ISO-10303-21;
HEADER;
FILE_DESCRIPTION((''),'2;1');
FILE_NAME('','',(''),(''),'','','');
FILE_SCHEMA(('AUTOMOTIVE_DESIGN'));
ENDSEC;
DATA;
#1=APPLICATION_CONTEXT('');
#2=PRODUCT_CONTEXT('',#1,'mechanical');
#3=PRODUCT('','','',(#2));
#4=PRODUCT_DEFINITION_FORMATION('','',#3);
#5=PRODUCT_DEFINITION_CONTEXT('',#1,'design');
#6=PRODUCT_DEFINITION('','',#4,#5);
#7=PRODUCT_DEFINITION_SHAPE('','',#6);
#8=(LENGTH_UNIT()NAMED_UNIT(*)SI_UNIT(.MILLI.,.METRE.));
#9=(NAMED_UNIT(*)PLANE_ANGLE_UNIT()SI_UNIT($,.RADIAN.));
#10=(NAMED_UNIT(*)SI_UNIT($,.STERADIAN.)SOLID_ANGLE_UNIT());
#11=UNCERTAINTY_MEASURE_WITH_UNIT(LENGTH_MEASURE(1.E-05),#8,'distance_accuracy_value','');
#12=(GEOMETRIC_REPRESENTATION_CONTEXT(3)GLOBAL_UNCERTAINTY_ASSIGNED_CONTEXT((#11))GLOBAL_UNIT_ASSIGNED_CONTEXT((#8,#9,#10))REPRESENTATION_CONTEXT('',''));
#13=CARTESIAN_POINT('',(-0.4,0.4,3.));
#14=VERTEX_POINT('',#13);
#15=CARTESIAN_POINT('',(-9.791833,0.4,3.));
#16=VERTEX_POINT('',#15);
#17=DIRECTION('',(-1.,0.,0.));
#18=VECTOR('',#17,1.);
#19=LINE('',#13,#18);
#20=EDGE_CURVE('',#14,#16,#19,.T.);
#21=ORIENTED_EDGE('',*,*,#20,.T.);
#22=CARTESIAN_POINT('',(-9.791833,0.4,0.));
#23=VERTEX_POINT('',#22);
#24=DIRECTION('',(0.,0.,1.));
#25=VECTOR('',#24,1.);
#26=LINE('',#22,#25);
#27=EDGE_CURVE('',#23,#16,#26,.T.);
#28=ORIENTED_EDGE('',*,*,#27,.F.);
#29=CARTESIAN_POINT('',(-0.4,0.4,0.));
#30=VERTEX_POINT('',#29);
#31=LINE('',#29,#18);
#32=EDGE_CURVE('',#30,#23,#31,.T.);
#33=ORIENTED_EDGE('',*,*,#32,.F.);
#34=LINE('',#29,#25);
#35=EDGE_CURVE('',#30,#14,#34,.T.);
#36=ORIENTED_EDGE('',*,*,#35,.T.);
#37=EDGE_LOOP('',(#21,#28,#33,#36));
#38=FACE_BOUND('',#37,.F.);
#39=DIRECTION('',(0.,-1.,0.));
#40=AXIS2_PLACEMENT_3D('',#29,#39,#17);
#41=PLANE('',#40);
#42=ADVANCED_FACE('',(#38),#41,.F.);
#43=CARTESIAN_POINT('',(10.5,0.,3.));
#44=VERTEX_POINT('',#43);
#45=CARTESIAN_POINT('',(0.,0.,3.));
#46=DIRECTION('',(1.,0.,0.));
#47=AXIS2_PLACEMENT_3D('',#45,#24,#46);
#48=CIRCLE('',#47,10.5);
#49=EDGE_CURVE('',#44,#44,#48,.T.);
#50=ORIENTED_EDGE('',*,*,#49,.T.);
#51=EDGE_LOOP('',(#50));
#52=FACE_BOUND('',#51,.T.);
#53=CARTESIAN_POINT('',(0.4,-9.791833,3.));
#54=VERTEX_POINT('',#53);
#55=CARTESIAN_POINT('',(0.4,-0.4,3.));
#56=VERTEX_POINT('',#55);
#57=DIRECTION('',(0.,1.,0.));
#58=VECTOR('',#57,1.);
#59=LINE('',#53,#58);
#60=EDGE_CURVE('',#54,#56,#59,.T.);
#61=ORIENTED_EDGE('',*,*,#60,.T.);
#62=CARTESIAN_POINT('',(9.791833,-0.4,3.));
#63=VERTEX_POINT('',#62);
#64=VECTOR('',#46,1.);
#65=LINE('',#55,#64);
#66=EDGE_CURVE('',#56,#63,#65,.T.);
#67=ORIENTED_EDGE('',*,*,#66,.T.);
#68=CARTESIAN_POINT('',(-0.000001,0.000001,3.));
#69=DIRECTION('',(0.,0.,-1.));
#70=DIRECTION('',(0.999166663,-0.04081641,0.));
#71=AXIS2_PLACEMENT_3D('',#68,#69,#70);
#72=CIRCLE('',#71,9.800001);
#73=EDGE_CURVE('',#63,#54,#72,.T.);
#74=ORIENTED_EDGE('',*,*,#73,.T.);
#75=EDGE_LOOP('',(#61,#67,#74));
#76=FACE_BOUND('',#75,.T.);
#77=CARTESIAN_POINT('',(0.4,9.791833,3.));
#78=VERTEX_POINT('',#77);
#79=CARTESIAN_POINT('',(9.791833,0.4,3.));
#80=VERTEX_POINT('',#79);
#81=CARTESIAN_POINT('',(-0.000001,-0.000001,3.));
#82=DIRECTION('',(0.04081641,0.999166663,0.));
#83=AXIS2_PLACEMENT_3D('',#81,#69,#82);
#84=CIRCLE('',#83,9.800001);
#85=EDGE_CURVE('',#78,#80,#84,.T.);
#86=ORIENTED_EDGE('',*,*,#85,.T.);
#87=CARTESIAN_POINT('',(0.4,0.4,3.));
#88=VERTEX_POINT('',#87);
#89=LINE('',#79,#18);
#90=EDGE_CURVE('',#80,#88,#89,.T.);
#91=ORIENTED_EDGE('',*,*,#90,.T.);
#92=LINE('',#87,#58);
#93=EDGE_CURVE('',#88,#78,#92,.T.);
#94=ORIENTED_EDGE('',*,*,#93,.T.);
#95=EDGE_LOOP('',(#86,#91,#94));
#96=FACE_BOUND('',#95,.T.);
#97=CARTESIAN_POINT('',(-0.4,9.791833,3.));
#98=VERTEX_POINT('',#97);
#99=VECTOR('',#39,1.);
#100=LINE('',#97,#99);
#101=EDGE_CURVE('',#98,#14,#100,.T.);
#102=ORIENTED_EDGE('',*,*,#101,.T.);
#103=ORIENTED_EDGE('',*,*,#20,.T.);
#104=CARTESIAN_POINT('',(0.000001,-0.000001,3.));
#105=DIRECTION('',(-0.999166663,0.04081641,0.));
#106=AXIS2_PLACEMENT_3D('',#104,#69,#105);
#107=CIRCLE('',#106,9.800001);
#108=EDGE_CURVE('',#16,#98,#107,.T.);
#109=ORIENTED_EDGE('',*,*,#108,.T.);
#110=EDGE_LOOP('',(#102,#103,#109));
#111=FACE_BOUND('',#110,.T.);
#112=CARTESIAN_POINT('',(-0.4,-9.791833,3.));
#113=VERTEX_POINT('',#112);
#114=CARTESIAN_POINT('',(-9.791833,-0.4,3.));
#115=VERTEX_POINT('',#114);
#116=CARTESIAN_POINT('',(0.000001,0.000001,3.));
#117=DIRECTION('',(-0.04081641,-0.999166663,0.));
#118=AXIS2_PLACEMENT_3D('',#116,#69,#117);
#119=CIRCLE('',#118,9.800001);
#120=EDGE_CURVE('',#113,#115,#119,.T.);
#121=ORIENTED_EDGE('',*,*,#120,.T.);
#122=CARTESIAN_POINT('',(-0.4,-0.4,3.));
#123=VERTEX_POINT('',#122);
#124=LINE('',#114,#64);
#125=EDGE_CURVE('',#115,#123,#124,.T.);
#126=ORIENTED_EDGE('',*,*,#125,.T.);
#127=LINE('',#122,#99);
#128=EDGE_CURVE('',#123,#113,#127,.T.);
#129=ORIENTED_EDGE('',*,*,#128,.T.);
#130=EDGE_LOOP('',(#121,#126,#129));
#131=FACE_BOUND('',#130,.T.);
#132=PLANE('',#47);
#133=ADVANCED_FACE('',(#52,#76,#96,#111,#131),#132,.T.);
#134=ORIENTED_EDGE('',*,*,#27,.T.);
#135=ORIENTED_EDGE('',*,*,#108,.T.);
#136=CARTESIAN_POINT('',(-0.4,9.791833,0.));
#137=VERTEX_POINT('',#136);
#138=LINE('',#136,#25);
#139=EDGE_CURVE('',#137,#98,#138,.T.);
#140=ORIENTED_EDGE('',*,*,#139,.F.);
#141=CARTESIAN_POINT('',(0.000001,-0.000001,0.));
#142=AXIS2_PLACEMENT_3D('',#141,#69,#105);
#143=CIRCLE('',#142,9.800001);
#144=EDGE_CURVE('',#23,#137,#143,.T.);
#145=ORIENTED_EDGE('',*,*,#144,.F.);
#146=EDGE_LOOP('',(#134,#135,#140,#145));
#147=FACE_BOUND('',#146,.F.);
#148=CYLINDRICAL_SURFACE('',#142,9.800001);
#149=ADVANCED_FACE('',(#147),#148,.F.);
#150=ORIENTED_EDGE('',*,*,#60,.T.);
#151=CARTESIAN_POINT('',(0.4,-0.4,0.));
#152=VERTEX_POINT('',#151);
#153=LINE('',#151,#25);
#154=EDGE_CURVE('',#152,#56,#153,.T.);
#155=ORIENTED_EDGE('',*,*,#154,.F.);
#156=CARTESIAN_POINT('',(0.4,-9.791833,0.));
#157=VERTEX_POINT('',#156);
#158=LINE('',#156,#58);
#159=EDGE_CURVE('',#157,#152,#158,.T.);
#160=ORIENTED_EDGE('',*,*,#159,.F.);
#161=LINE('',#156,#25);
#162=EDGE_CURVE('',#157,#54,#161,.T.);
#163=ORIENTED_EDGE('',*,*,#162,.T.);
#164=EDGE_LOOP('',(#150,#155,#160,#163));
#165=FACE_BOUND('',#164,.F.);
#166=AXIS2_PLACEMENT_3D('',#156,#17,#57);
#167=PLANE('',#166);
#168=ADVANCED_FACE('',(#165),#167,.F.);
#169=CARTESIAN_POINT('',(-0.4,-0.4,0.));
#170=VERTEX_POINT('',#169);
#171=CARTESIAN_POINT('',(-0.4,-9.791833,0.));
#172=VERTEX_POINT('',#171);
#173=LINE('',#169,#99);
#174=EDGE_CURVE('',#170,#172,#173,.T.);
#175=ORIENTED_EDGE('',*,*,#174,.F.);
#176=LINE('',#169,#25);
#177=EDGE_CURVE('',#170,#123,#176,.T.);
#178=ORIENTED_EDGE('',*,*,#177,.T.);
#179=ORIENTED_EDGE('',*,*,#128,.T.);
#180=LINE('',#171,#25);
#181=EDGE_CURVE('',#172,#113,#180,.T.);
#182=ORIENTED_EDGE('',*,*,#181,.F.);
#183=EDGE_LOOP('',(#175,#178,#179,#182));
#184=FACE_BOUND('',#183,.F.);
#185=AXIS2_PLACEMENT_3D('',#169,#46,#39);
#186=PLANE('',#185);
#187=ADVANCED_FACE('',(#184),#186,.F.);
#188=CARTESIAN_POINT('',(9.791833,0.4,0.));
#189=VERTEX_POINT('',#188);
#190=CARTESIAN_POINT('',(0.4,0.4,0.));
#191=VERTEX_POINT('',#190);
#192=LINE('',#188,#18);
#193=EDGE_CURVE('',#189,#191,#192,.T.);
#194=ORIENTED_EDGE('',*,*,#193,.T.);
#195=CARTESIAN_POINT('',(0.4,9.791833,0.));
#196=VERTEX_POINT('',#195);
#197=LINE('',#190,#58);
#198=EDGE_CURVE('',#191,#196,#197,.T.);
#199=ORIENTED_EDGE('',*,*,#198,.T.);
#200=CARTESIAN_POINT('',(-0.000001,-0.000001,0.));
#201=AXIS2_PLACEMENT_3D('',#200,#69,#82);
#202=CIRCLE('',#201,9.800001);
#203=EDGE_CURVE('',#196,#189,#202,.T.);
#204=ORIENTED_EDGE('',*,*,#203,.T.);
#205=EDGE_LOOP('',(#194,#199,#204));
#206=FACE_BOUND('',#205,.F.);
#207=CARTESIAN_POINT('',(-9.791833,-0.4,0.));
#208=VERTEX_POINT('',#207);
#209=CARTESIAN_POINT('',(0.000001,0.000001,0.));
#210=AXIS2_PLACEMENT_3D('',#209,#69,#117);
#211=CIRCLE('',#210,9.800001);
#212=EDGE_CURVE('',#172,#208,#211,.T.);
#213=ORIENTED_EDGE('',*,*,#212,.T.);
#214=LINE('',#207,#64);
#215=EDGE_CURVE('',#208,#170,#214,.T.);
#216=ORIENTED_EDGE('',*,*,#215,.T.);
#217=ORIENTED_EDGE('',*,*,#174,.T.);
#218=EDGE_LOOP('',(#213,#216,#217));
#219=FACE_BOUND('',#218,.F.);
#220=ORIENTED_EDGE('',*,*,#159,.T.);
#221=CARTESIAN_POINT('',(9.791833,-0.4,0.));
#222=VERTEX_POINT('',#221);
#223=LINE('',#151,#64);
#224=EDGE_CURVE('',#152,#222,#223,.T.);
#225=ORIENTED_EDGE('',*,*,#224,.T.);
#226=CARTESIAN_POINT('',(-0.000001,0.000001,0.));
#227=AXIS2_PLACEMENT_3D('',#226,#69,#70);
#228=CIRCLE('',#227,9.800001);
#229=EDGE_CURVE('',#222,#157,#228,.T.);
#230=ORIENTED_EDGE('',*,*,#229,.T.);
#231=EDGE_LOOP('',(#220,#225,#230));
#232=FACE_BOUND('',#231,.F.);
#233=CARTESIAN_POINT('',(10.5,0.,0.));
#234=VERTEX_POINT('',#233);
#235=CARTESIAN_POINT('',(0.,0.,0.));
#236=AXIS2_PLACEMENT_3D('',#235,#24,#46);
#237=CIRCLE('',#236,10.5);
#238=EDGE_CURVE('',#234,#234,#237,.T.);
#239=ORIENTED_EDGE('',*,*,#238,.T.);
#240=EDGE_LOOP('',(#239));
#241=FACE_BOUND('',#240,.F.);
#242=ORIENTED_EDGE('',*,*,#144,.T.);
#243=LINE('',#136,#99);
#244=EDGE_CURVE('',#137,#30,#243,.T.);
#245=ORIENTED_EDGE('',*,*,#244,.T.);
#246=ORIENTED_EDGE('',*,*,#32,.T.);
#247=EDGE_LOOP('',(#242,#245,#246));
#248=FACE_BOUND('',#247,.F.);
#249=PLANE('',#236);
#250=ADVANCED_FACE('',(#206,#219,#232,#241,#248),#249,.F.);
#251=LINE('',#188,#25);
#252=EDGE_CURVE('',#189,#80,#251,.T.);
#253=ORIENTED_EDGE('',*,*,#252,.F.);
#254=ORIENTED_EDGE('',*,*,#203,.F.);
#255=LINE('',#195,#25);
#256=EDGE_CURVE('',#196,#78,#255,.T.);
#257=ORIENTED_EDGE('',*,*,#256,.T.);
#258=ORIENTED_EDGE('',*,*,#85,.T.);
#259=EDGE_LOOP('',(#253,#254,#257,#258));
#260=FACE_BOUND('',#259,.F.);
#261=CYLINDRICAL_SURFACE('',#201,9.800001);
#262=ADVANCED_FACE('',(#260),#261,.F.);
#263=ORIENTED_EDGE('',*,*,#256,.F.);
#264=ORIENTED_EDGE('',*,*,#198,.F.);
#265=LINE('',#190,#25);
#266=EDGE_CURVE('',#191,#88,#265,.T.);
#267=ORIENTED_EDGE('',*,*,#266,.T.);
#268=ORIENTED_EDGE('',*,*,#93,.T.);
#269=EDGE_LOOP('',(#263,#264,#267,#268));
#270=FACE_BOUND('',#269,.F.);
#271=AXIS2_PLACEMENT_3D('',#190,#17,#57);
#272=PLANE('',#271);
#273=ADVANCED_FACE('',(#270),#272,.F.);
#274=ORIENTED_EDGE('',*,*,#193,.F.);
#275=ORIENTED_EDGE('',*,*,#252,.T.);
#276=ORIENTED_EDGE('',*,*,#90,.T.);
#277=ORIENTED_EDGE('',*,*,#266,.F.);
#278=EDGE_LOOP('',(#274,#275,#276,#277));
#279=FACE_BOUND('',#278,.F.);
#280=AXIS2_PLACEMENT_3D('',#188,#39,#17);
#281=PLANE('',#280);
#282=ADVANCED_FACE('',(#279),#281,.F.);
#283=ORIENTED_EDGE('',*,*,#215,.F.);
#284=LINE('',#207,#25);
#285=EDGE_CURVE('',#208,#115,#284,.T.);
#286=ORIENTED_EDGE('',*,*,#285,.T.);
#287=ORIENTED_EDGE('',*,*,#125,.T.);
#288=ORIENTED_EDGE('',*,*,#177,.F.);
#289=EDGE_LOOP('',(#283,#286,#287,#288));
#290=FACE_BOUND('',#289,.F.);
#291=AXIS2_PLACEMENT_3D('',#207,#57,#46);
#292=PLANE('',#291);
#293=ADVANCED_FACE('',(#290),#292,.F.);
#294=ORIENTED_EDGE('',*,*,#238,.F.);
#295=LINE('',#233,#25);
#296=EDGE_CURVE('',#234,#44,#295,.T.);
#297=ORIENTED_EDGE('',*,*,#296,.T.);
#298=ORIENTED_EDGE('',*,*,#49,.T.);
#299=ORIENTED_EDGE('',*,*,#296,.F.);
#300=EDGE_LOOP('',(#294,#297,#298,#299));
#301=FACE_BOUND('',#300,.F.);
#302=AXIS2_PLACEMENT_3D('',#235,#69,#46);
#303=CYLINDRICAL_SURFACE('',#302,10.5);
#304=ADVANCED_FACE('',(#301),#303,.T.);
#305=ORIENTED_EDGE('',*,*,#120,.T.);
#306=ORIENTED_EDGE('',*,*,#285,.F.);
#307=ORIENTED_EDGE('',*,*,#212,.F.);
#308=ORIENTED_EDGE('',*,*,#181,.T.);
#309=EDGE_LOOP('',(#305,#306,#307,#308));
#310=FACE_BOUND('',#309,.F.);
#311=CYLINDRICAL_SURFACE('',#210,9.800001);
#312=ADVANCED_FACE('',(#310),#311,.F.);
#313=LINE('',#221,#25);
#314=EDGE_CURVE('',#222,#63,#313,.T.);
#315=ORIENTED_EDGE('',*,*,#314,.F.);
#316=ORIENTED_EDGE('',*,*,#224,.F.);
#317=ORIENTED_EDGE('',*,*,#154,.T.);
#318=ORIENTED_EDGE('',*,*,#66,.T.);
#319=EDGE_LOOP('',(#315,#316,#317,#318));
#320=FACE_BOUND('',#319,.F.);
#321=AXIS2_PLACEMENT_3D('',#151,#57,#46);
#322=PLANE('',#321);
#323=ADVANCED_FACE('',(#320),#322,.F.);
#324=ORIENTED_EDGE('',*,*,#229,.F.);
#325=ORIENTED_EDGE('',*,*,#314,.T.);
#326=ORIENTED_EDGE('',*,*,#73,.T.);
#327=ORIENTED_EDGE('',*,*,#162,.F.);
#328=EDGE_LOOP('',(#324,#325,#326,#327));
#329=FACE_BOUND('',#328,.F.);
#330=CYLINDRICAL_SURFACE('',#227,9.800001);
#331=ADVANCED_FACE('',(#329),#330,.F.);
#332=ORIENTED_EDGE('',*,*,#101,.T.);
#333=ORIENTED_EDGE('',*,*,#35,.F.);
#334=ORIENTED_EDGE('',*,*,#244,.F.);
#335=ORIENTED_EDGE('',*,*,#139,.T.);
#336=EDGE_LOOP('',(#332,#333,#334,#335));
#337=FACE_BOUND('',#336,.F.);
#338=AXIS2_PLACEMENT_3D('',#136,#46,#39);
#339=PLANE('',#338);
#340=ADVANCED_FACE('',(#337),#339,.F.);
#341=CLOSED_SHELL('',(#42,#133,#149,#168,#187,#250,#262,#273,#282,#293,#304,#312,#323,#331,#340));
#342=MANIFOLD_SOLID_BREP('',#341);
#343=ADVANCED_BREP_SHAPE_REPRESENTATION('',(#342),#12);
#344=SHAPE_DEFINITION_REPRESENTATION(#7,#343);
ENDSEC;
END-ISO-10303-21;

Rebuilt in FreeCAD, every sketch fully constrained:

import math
import FreeCAD as App
import Part
import Sketcher

doc = App.newDocument("Part")
params = doc.addObject("Spreadsheet::Sheet", "Params")
for row, (alias, value) in enumerate([
    ("sketch1_diameter", "21 mm"),
    ("sketch1_radius", "9.800001 mm"),
    ("pad1_length", "3 mm"),
], start=1):
    params.set(f"A{row}", alias)
    params.set(f"B{row}", "=" + value)
    params.setAlias(f"B{row}", alias)

body = doc.addObject("PartDesign::Body", "Body")

sketch1 = body.newObject("Sketcher::SketchObject", "Sketch")
sketch1.AttachmentSupport = (doc.getObject("XY_Plane"), [""])
sketch1.MapMode = "FlatFace"
sketch1.addGeometry([
    Part.Circle(App.Vector(0, 0, 0), App.Vector(0, 0, 1), 10.5),
    Part.LineSegment(App.Vector(-9.791833, -0.4, 0), App.Vector(-0.4, -0.4, 0)),
    Part.LineSegment(App.Vector(-0.4, -0.4, 0), App.Vector(-0.4, -9.791833, 0)),
    Part.ArcOfCircle(Part.Circle(App.Vector(0.000001, 0.000001, 0), App.Vector(0, 0, 1), 9.800001), math.radians(-177.660742), math.radians(-92.339258)),
    Part.LineSegment(App.Vector(0.4, -9.791833, 0), App.Vector(0.4, -0.4, 0)),
    Part.LineSegment(App.Vector(0.4, -0.4, 0), App.Vector(9.791833, -0.4, 0)),
    Part.ArcOfCircle(Part.Circle(App.Vector(-0.000001, 0.000001, 0), App.Vector(0, 0, 1), 9.800001), math.radians(-87.660742), math.radians(-2.339258)),
    Part.LineSegment(App.Vector(-0.4, 0.4, 0), App.Vector(-9.791833, 0.4, 0)),
    Part.ArcOfCircle(Part.Circle(App.Vector(0.000001, -0.000001, 0), App.Vector(0, 0, 1), 9.800001), math.radians(92.339258), math.radians(177.660742)),
    Part.LineSegment(App.Vector(-0.4, 9.791833, 0), App.Vector(-0.4, 0.4, 0)),
    Part.LineSegment(App.Vector(9.791833, 0.4, 0), App.Vector(0.4, 0.4, 0)),
    Part.LineSegment(App.Vector(0.4, 0.4, 0), App.Vector(0.4, 9.791833, 0)),
    Part.ArcOfCircle(Part.Circle(App.Vector(-0.000001, -0.000001, 0), App.Vector(0, 0, 1), 9.800001), math.radians(2.339258), math.radians(87.660742)),
], False)
sketch1.addConstraint([
    Sketcher.Constraint("Coincident", 1, 2, 2, 1),
    Sketcher.Constraint("Coincident", 2, 2, 3, 2),
    Sketcher.Constraint("Coincident", 3, 1, 1, 1),
    Sketcher.Constraint("Coincident", 4, 2, 5, 1),
    Sketcher.Constraint("Coincident", 5, 2, 6, 2),
    Sketcher.Constraint("Coincident", 6, 1, 4, 1),
    Sketcher.Constraint("Coincident", 7, 2, 8, 2),
    Sketcher.Constraint("Coincident", 8, 1, 9, 1),
    Sketcher.Constraint("Coincident", 9, 2, 7, 1),
    Sketcher.Constraint("Coincident", 10, 2, 11, 1),
    Sketcher.Constraint("Coincident", 11, 2, 12, 2),
    Sketcher.Constraint("Coincident", 12, 1, 10, 1),
    Sketcher.Constraint("Horizontal", 1),
    Sketcher.Constraint("Vertical", 2),
    Sketcher.Constraint("Vertical", 4),
    Sketcher.Constraint("Horizontal", 5),
    Sketcher.Constraint("Horizontal", 7),
    Sketcher.Constraint("Vertical", 9),
    Sketcher.Constraint("Horizontal", 10),
    Sketcher.Constraint("Vertical", 11),
    Sketcher.Constraint("Coincident", 0, 3, -1, 1),
    Sketcher.Constraint("Coincident", 3, 3, -1, 1),
    Sketcher.Constraint("Coincident", 6, 3, -1, 1),
    Sketcher.Constraint("Coincident", 8, 3, -1, 1),
    Sketcher.Constraint("Coincident", 12, 3, -1, 1),
    Sketcher.Constraint("Equal", 3, 6),
    Sketcher.Constraint("Equal", 6, 8),
    Sketcher.Constraint("Equal", 8, 12),
    Sketcher.Constraint("Symmetric", 4, 2, 9, 2, -1, 1),
    Sketcher.Constraint("Symmetric", 1, 2, 10, 2, -1, 1),
    Sketcher.Constraint("Symmetric", 1, 2, 4, 2, -2),
    Sketcher.Constraint("Equal", 10, 2),
    Sketcher.Constraint("Diameter", 0, 21.0),
    Sketcher.Constraint("Radius", 3, 9.800001),
    Sketcher.Constraint("DistanceX", 1, 2, -1, 1, 0.4),
])
sketch1.setExpression("Constraints[32]", "Params.sketch1_diameter")
sketch1.setExpression("Constraints[33]", "Params.sketch1_radius")
pad1 = body.newObject("PartDesign::Pad", "Pad")
pad1.Profile = sketch1
pad1.setExpression("Length", "Params.pad1_length")

doc.recompute()
